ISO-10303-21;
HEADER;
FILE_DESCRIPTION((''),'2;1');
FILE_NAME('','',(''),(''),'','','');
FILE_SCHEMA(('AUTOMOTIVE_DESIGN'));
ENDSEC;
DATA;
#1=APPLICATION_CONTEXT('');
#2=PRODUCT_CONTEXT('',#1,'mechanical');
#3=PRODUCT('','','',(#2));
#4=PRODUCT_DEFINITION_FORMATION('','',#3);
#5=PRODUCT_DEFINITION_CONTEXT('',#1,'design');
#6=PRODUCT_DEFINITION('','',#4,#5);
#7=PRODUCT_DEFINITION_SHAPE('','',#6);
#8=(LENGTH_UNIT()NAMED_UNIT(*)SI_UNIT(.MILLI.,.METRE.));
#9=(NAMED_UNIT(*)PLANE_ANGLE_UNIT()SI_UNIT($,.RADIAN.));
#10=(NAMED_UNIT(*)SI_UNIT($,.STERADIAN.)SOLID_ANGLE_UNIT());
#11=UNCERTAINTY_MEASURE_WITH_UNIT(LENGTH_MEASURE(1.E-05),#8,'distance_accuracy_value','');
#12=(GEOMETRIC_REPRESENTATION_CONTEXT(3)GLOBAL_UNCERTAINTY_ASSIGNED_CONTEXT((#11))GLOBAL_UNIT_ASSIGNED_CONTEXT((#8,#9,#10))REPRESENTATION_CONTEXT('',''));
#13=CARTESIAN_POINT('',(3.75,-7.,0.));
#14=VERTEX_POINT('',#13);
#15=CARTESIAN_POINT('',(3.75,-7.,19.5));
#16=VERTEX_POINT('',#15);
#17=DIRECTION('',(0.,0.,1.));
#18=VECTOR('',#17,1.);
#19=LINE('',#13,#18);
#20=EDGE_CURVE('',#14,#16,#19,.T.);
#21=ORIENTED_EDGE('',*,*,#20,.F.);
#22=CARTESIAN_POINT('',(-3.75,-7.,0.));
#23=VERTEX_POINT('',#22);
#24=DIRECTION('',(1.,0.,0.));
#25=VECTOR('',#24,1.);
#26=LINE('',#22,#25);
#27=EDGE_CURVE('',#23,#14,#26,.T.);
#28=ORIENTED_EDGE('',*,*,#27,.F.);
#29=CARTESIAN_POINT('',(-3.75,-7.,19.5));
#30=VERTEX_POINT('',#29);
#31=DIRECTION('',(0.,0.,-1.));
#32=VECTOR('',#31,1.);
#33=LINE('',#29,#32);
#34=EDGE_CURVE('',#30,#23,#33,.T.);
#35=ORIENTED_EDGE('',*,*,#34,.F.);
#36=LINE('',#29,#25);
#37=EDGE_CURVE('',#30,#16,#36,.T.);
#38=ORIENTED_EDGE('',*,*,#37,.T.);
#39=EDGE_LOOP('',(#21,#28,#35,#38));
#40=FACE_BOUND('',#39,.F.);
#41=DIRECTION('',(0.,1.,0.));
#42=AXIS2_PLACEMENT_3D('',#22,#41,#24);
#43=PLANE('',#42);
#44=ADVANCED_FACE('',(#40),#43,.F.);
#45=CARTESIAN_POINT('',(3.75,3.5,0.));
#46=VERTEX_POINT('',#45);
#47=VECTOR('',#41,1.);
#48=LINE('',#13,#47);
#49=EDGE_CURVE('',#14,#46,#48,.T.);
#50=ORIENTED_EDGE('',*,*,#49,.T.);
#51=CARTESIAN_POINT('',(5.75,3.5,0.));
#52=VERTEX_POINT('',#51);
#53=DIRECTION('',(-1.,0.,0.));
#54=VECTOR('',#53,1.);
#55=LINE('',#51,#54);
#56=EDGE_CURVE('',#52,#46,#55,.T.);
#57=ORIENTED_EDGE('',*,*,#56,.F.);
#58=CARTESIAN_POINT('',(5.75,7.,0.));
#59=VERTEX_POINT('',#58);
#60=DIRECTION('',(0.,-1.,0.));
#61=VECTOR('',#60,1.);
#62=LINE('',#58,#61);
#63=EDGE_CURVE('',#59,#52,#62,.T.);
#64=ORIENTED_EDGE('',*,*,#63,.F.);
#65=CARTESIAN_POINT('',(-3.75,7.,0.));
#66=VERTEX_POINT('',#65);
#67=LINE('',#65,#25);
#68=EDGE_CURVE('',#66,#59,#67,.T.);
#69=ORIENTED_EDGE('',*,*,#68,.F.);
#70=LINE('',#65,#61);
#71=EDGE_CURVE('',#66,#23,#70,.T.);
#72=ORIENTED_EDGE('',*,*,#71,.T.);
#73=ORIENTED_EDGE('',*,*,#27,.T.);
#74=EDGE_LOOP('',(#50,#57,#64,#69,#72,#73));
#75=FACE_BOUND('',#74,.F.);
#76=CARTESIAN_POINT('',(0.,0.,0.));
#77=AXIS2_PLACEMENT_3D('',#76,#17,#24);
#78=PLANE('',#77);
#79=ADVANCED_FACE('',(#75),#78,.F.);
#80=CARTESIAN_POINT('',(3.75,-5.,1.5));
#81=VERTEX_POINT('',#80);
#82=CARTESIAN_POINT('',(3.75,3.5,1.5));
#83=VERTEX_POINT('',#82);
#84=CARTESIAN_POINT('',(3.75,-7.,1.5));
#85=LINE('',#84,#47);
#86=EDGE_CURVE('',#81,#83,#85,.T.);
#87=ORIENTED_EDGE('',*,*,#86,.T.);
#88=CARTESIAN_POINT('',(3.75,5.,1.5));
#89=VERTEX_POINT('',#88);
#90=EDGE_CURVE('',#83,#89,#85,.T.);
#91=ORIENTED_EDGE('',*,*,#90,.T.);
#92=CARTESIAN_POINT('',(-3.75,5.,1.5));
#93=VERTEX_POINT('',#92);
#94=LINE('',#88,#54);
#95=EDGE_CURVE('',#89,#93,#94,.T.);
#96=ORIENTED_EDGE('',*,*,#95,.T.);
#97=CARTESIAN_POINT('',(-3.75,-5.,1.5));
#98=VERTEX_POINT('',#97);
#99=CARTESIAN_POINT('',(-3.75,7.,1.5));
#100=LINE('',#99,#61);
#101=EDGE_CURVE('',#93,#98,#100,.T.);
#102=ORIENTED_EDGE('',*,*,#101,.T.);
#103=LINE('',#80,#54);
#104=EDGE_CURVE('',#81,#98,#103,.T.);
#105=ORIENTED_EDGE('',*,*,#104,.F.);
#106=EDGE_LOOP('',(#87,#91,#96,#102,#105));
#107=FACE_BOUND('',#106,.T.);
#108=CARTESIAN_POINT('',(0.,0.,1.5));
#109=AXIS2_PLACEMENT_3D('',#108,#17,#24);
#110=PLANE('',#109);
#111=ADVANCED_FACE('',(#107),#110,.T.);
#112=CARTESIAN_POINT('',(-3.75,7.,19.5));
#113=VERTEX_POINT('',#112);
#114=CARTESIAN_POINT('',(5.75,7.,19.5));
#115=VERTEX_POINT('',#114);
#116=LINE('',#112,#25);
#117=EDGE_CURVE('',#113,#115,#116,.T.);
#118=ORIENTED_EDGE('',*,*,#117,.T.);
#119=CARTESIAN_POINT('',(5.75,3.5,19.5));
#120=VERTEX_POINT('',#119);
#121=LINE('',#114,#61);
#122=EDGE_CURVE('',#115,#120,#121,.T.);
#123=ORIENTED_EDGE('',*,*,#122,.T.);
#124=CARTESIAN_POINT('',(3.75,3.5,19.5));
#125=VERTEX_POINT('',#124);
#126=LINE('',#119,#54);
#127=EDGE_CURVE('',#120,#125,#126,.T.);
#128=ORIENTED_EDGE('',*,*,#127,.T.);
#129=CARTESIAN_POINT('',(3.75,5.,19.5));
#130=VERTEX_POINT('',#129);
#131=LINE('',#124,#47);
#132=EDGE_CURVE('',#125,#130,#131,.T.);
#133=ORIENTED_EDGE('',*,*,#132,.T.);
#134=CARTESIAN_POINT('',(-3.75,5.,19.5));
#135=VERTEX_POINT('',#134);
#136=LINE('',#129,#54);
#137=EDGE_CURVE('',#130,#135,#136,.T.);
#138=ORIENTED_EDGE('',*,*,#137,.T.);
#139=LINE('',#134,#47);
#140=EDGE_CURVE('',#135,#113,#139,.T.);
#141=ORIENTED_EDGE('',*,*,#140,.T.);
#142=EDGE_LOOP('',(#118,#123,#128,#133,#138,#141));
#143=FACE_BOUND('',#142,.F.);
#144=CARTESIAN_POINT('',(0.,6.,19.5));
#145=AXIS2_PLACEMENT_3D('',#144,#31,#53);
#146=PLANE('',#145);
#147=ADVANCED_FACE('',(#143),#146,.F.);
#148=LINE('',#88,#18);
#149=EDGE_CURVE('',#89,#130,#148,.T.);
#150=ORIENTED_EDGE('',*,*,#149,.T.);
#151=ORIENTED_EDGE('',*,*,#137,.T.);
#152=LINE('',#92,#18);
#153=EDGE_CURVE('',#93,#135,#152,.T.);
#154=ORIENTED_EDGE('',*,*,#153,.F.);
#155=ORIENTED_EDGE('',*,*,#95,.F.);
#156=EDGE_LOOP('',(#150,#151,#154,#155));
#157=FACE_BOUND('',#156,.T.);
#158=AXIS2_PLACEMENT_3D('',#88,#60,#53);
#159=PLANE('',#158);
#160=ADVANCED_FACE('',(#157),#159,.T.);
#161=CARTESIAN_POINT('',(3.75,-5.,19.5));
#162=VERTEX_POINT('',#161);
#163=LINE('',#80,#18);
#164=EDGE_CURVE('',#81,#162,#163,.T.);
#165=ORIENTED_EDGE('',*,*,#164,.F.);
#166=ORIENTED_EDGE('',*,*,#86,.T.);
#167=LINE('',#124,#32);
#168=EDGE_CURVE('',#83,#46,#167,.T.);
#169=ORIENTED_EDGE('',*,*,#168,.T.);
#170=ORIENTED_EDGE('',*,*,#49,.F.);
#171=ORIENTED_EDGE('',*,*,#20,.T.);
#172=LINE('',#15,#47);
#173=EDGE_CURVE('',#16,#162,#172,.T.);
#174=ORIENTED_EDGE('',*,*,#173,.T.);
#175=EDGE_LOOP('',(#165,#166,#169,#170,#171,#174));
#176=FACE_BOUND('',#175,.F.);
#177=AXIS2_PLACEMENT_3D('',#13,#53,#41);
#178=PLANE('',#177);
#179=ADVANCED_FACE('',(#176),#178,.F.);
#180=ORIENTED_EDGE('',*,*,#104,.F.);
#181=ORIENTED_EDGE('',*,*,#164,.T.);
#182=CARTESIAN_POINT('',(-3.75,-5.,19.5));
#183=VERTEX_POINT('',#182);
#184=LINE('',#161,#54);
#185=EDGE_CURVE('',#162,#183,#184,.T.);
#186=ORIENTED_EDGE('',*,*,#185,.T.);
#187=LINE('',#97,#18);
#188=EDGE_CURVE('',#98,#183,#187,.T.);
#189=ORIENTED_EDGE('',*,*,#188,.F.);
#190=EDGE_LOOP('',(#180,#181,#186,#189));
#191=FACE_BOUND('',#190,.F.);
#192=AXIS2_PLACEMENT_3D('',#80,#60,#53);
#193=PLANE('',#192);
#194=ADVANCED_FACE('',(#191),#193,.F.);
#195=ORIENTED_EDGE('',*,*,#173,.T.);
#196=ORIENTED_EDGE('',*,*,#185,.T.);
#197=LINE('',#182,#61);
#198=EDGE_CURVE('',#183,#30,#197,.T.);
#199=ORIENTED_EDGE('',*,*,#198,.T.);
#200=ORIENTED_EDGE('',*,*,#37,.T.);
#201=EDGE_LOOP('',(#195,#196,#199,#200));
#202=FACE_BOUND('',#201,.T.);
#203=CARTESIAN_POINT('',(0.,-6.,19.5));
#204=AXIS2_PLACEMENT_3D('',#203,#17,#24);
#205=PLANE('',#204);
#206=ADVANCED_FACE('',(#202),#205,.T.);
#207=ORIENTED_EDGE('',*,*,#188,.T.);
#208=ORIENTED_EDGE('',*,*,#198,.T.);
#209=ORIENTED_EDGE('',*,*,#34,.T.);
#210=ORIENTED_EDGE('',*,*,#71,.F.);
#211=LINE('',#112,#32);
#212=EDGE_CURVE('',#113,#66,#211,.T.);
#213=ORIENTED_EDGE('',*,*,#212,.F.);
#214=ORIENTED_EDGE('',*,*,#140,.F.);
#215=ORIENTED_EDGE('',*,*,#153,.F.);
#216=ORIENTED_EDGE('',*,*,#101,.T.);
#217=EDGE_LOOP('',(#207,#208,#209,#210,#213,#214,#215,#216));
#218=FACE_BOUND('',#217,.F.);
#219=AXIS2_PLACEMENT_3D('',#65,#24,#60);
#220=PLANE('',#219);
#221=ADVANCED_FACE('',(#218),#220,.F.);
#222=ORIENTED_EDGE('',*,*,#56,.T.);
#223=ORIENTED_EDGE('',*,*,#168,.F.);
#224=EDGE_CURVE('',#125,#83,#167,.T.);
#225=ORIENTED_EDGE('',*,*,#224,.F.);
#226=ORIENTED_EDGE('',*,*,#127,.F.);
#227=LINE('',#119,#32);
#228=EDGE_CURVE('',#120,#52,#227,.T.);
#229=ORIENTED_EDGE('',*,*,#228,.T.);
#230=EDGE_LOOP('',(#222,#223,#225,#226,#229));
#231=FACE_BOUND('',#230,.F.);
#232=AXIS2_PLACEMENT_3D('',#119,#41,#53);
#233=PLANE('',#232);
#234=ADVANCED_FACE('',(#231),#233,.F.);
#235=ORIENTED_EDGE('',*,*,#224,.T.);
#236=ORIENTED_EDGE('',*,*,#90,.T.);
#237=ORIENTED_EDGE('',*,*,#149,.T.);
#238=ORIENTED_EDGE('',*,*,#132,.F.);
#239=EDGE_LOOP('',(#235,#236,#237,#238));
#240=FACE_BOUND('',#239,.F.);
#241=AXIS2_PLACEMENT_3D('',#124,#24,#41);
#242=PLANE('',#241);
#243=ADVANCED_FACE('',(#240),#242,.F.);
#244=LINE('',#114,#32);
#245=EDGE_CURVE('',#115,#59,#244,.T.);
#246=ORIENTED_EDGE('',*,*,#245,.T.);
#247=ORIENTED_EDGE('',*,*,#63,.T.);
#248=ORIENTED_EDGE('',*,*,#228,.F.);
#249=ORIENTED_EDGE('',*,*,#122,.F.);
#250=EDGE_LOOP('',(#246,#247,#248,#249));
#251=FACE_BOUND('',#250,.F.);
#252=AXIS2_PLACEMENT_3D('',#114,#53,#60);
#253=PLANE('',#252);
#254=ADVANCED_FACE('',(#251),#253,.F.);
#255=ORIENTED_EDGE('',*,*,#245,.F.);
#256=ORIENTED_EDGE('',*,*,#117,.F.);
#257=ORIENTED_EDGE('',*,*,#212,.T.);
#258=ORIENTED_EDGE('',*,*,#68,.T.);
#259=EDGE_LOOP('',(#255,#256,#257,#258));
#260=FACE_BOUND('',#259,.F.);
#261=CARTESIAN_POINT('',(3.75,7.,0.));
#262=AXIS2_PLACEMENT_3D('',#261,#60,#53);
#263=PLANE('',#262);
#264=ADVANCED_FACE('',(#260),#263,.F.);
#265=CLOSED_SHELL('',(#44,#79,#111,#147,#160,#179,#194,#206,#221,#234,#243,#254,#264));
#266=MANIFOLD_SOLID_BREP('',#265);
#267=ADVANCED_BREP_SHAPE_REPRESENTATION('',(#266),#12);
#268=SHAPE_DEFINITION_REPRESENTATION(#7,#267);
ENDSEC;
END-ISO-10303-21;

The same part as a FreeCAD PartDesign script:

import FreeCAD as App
import Part
import Sketcher
from FreeCAD import Vector
Q = App.Units.Quantity


def add_polygon(sketch, points):
    """Adds a closed chain of lines whose ends are joined by coincident constraints."""
    first, n = sketch.GeometryCount, len(points)
    for a, b in zip(points, points[1:] + points[:1]):
        sketch.addGeometry(Part.LineSegment(App.Vector(*a, 0), App.Vector(*b, 0)), False)
    for i in range(n):
        sketch.addConstraint(Sketcher.Constraint("Coincident", first + i, 2, first + (i + 1) % n, 1))

doc = App.newDocument("Part")
body = doc.addObject("PartDesign::Body", "Body")

# Sketch on XY plane
sketch1 = body.newObject("Sketcher::SketchObject", "Sketch")
sketch1.AttachmentSupport = (doc.getObject("XY_Plane"), [""])
sketch1.MapMode = "FlatFace"
add_polygon(sketch1, [(-4, 7), (-4, -7), (4, -7), (4, 7)])  # lines 0-3
sketch1.addConstraint(Sketcher.Constraint("Vertical", 0))
sketch1.addConstraint(Sketcher.Constraint("Horizontal", 1))
sketch1.addConstraint(Sketcher.Constraint("Vertical", 2))
sketch1.addConstraint(Sketcher.Constraint("Horizontal", 3))
sketch1.addConstraint(Sketcher.Constraint("Symmetric", 0, 2, 2, 2, -1, 1))
sketch1.addConstraint(Sketcher.Constraint("DistanceY", 0, 2, 0, 1, Q("14 mm")))
sketch1.addConstraint(Sketcher.Constraint("DistanceX", 0, 2, -1, 1, Q("3.75 mm")))
pad1 = body.newObject("PartDesign::Pad", "Pad")
pad1.Profile = sketch1
pad1.Length = 1.5

# Sketch on XY plane
sketch2 = body.newObject("Sketcher::SketchObject", "Sketch001")
sketch2.AttachmentSupport = (doc.getObject("XY_Plane"), [""])
sketch2.MapMode = "FlatFace"
sketch2.AttachmentOffset = App.Placement(Vector(0, 0, 1.5), App.Rotation())
add_polygon(sketch2, [(3.8, 7), (-3.8, 7), (-3.8, 5), (3.8, 5)])  # lines 0-3
add_polygon(sketch2, [(-3.8, -5), (-3.8, -7), (3.8, -7), (3.8, -5)])  # lines 4-7
sketch2.addConstraint(Sketcher.Constraint("Horizontal", 0))
sketch2.addConstraint(Sketcher.Constraint("Vertical", 1))
sketch2.addConstraint(Sketcher.Constraint("Horizontal", 2))
sketch2.addConstraint(Sketcher.Constraint("Vertical", 3))
sketch2.addConstraint(Sketcher.Constraint("Vertical", 4))
sketch2.addConstraint(Sketcher.Constraint("Horizontal", 5))
sketch2.addConstraint(Sketcher.Constraint("Vertical", 6))
sketch2.addConstraint(Sketcher.Constraint("Horizontal", 7))
sketch2.addConstraint(Sketcher.Constraint("Symmetric", 3, 2, 4, 2, -1, 1))
sketch2.addConstraint(Sketcher.Constraint("Symmetric", 1, 2, 6, 2, -1, 1))
sketch2.addConstraint(Sketcher.Constraint("Vertical", 1, 2, 4, 2))
sketch2.addConstraint(Sketcher.Constraint("DistanceY", 1, 2, 1, 1, Q("2 mm")))
sketch2.addConstraint(Sketcher.Constraint("DistanceX", 0, 2, -1, 1, Q("3.75 mm")))
sketch2.addConstraint(Sketcher.Constraint("DistanceY", -1, 1, 0, 2, Q("7 mm")))
pad2 = body.newObject("PartDesign::Pad", "Pad001")
pad2.Profile = sketch2
pad2.Length = 18

# Sketch on XY plane
sketch3 = body.newObject("Sketcher::SketchObject", "Sketch002")
sketch3.AttachmentSupport = (doc.getObject("XY_Plane"), [""])
sketch3.MapMode = "FlatFace"
sketch3.AttachmentOffset = App.Placement(Vector(0, 0, 19.5), App.Rotation())
add_polygon(sketch3, [(5.8, 7), (3.8, 7), (3.8, 3.5), (5.8, 3.5)])  # lines 0-3
sketch3.addConstraint(Sketcher.Constraint("Horizontal", 0))
sketch3.addConstraint(Sketcher.Constraint("Vertical", 1))
sketch3.addConstraint(Sketcher.Constraint("Horizontal", 2))
sketch3.addConstraint(Sketcher.Constraint("Vertical", 3))
sketch3.addConstraint(Sketcher.Constraint("DistanceX", 0, 2, 0, 1, Q("2 mm")))
sketch3.addConstraint(Sketcher.Constraint("DistanceY", 1, 2, 1, 1, Q("3.5 mm")))
sketch3.addConstraint(Sketcher.Constraint("DistanceY", -1, 1, 0, 2, Q("7 mm")))
sketch3.addConstraint(Sketcher.Constraint("DistanceX", -1, 1, 0, 2, Q("3.75 mm")))
pad3 = body.newObject("PartDesign::Pad", "Pad002")
pad3.Profile = sketch3
pad3.Length = 19.5
pad3.Reversed = True

doc.recompute()
